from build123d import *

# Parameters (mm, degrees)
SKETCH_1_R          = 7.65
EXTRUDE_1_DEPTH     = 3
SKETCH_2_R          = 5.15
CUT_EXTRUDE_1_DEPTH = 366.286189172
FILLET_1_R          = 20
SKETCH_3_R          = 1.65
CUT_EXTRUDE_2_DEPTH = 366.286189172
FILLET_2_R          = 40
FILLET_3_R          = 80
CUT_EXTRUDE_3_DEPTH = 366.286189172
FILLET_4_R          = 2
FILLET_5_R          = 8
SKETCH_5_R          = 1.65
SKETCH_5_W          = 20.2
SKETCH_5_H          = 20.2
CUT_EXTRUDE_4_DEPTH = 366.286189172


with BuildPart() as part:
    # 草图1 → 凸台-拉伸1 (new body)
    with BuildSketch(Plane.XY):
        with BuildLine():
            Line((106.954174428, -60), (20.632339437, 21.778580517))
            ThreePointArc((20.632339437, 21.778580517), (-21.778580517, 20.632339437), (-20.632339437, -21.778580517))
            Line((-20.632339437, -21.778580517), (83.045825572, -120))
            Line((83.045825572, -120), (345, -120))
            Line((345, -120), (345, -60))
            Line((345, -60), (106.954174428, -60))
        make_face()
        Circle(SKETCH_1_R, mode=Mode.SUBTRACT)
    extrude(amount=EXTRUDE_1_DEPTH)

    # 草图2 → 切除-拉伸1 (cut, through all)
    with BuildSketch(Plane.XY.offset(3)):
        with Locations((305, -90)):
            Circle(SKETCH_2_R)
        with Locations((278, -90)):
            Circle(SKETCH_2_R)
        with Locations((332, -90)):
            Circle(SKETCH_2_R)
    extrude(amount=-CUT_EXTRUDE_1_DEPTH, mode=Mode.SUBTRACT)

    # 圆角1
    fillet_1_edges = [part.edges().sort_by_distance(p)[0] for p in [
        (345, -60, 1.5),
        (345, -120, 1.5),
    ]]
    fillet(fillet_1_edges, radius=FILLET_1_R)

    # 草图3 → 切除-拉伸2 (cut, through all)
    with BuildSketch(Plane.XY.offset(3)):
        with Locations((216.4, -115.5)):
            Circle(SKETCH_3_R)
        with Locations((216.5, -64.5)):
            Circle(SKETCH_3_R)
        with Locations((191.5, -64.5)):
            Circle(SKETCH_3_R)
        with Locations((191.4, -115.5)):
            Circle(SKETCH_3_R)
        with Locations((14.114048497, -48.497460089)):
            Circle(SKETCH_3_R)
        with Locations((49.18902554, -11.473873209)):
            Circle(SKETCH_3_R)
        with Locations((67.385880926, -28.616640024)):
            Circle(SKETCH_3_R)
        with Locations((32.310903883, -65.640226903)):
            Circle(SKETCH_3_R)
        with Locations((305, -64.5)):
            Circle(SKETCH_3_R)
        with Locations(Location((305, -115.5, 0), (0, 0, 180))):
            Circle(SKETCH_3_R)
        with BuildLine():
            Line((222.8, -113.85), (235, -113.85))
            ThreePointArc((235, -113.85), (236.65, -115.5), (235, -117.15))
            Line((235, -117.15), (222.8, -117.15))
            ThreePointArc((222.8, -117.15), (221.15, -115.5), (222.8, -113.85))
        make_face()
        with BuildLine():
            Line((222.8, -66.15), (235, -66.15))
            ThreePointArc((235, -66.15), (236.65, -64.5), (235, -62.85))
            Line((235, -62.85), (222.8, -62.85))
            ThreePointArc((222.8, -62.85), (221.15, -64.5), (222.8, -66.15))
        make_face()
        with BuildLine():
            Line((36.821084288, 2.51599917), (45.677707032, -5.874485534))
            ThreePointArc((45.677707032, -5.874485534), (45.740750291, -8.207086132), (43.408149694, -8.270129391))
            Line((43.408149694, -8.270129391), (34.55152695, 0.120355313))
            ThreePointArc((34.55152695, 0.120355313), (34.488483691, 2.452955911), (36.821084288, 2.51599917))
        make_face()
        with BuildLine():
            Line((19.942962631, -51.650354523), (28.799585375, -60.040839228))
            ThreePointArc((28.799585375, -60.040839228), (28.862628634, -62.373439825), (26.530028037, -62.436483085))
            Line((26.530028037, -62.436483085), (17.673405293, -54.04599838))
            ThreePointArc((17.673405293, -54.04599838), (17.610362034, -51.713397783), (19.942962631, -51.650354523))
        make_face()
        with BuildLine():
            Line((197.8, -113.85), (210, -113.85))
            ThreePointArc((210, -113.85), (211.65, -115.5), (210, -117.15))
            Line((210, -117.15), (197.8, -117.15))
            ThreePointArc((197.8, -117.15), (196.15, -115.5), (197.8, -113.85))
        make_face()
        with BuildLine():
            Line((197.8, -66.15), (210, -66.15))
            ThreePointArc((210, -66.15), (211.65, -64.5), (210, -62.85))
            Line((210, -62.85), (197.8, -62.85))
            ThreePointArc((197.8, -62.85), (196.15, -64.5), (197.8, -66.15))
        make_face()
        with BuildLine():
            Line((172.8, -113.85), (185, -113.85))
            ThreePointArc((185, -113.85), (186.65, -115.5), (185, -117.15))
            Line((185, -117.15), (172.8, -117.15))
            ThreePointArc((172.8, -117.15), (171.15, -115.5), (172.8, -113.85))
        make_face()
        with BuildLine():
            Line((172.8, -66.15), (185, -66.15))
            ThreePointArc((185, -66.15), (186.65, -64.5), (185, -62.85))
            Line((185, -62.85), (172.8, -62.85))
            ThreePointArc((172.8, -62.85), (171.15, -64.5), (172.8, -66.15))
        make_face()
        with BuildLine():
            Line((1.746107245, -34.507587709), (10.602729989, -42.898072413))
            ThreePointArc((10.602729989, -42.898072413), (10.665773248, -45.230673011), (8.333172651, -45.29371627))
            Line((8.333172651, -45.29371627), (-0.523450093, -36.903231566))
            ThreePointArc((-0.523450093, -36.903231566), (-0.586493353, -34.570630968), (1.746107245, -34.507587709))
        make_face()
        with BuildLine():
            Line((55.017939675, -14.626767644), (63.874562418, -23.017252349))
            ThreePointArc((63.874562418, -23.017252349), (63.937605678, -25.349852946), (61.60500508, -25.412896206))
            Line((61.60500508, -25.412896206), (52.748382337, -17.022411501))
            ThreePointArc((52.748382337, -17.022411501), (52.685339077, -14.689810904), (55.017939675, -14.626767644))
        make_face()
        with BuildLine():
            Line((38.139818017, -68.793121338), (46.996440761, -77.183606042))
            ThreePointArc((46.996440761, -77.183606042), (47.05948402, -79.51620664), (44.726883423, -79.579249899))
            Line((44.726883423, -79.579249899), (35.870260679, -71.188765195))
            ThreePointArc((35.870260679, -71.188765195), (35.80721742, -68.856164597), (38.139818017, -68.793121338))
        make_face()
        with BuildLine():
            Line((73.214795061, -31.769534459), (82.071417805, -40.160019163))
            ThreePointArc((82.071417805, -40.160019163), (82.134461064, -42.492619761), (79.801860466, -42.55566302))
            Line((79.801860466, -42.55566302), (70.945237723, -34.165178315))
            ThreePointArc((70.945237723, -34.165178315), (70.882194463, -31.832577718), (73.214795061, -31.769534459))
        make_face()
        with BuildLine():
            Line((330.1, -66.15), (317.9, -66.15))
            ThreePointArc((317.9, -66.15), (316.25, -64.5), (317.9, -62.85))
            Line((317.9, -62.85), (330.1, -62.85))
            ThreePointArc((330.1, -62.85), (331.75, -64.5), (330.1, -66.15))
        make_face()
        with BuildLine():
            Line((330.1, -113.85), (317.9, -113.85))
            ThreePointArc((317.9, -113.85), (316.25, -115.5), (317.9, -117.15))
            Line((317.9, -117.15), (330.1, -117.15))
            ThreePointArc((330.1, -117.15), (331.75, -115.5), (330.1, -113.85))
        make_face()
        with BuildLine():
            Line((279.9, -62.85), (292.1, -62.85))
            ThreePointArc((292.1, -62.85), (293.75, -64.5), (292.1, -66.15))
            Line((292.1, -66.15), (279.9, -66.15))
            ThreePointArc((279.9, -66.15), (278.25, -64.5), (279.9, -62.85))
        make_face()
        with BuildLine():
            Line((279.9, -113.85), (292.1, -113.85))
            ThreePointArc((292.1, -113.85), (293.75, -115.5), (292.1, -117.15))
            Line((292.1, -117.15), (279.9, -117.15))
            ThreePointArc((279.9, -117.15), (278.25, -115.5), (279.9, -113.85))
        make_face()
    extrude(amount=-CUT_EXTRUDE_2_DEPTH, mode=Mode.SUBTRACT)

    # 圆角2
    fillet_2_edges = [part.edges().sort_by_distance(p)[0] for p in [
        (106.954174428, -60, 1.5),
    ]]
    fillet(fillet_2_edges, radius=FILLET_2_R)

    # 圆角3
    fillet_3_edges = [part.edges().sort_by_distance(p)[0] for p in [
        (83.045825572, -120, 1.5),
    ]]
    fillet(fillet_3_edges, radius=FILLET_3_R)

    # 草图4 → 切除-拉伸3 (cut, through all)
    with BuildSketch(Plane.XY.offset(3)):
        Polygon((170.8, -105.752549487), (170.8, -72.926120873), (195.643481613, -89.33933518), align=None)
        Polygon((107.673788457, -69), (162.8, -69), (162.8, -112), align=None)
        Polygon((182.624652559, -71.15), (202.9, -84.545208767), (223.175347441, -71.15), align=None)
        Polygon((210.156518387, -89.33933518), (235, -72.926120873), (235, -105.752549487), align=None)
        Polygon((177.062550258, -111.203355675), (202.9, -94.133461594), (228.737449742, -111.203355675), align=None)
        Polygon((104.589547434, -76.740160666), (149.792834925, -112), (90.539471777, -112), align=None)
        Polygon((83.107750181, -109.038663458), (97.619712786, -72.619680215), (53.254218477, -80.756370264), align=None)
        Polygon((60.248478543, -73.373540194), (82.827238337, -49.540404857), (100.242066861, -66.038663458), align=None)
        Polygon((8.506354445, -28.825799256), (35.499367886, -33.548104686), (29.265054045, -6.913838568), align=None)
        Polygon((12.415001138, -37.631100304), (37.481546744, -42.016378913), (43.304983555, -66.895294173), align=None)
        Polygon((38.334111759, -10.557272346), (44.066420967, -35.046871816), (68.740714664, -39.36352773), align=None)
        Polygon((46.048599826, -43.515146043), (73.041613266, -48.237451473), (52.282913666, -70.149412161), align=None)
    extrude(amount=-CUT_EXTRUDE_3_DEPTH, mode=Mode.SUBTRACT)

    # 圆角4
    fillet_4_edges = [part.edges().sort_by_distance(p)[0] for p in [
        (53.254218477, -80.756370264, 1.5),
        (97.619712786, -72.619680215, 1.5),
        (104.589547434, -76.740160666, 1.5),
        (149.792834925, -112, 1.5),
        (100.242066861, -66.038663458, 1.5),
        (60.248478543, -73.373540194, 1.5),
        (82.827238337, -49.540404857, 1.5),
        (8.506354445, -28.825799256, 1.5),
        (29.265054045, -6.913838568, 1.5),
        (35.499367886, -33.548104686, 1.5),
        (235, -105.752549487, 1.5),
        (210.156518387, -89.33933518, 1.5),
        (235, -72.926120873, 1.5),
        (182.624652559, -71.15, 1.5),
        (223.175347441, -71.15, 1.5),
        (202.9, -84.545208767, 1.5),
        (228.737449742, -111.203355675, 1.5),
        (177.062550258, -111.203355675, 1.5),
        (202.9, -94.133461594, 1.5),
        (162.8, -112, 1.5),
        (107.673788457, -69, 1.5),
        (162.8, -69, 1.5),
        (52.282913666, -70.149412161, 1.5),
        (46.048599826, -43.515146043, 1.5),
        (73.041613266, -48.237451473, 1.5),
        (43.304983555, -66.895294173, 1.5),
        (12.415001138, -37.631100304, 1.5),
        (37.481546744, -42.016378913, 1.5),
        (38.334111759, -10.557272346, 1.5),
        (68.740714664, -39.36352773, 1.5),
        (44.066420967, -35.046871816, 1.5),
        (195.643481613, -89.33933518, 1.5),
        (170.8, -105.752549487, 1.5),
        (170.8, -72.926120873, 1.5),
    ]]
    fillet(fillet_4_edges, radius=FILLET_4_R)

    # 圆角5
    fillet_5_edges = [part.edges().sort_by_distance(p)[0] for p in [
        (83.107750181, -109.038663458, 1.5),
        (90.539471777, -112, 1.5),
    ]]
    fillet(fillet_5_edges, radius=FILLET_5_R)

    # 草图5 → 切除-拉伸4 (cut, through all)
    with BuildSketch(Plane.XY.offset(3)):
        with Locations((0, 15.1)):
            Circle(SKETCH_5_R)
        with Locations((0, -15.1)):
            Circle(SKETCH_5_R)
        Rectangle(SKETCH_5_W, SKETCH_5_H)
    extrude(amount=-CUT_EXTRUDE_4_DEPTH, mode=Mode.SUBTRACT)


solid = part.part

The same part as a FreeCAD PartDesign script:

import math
import FreeCAD as App
import Part
import Sketcher

V = App.Vector
Q = App.Units.Quantity


def edges_at(feature, points):
    """Names of the edges that pass closest to the given points."""
    edges = feature.Shape.Edges
    near = lambda p: min(range(len(edges)), key=lambda i: edges[i].distToShape(Part.Vertex(*p))[0])
    return sorted({f"Edge{near(p) + 1}" for p in points})


def add_polygon(sketch, points):
    """Adds a closed chain of lines whose ends are joined by coincident constraints."""
    first, n = sketch.GeometryCount, len(points)
    for a, b in zip(points, points[1:] + points[:1]):
        sketch.addGeometry(Part.LineSegment(App.Vector(*a, 0), App.Vector(*b, 0)), False)
    for i in range(n):
        sketch.addConstraint(Sketcher.Constraint("Coincident", first + i, 2, first + (i + 1) % n, 1))

doc = App.newDocument("Part")
params = doc.addObject("Spreadsheet::Sheet", "Params")
for row, (alias, value) in enumerate([
    ("sketch1_radius", "30 mm"),
    ("sketch1_diameter", "15.3 mm"),
    ("sketch1_height", "60 mm"),
    ("pad1_length", "3 mm"),
    ("sketch2_diameter", "10.3 mm"),
    ("fillet_radius", "20 mm"),
    ("sketch3_diameter", "3.3 mm"),
    ("sketch3_width", "12.2 mm"),
    ("sketch3_length", "12.2 mm"),
    ("fillet2_radius", "40 mm"),
    ("fillet3_radius", "80 mm"),
    ("sketch4_height", "43 mm"),
    ("fillet4_radius", "2 mm"),
    ("fillet5_radius", "8 mm"),
    ("sketch5_diameter", "3.3 mm"),
    ("sketch5_width", "20.2 mm"),
], start=1):
    params.set(f"A{row}", alias)
    params.set(f"B{row}", "=" + value)
    params.setAlias(f"B{row}", alias)

body = doc.addObject("PartDesign::Body", "Body")

sketch1 = body.newObject("Sketcher::SketchObject", "Sketch")
sketch1.AttachmentSupport = (doc.getObject("XY_Plane"), [""])
sketch1.MapMode = "FlatFace"
sketch1.addGeometry([
    Part.LineSegment(V(107, -60, 0), V(21, 22, 0)),
    Part.ArcOfCircle(Part.Circle(V(0, 0, 0), V(0, 0, 1), 30), math.radians(47), math.radians(227)),
    Part.LineSegment(V(-21, -22, 0), V(83, -120, 0)),
    Part.LineSegment(V(83, -120, 0), V(345, -120, 0)),
    Part.LineSegment(V(345, -120, 0), V(345, -60, 0)),
    Part.LineSegment(V(345, -60, 0), V(107, -60, 0)),
    Part.Circle(V(0, 0, 0), V(0, 0, 1), 8),
], False)
sketch1.addConstraint([
    Sketcher.Constraint("Tangent", 0, 2, 1, 1),
    Sketcher.Constraint("Tangent", 1, 2, 2, 1),
    Sketcher.Constraint("Coincident", 2, 2, 3, 1),
    Sketcher.Constraint("Coincident", 3, 2, 4, 1),
    Sketcher.Constraint("Coincident", 4, 2, 5, 1),
    Sketcher.Constraint("Coincident", 5, 2, 0, 1),
    Sketcher.Constraint("Horizontal", 3),
    Sketcher.Constraint("Vertical", 4),
    Sketcher.Constraint("Horizontal", 5),
    Sketcher.Constraint("Coincident", 1, 3, -1, 1),
    Sketcher.Constraint("Coincident", 6, 3, -1, 1),
    Sketcher.Constraint("Parallel", 0, 2),
    Sketcher.Constraint("Radius", 1, Q("30 mm")),
    Sketcher.Constraint("Diameter", 6, Q("15.3 mm")),
    Sketcher.Constraint("DistanceY", 4, 1, 4, 2, Q("60 mm")),
    Sketcher.Constraint("DistanceY", 2, 2, -1, 1, Q("120 mm")),
    Sketcher.Constraint("DistanceX", -1, 1, 3, 2, Q("345 mm")),
    Sketcher.Constraint("Distance", 0, Q("118.908349 mm")),
])
sketch1.setExpression("Constraints[12]", "Params.sketch1_radius")
sketch1.setExpression("Constraints[13]", "Params.sketch1_diameter")
sketch1.setExpression("Constraints[14]", "Params.sketch1_height")
pad1 = body.newObject("PartDesign::Pad", "Pad")
pad1.Profile = sketch1
pad1.setExpression("Length", "Params.pad1_length")

sketch2 = body.newObject("Sketcher::SketchObject", "Sketch001")
sketch2.AttachmentSupport = (doc.getObject("XY_Plane"), [""])
sketch2.MapMode = "FlatFace"
sketch2.AttachmentOffset = App.Placement(V(0, 0, 3), App.Rotation())
sketch2.addGeometry([
    Part.Circle(V(305, -90, 0), V(0, 0, 1), 5),
    Part.Circle(V(278, -90, 0), V(0, 0, 1), 5),
    Part.Circle(V(332, -90, 0), V(0, 0, 1), 5),
], False)
sketch2.addConstraint([
    Sketcher.Constraint("Equal", 0, 1),
    Sketcher.Constraint("Equal", 1, 2),
    Sketcher.Constraint("Horizontal", 0, 3, 1, 3),
    Sketcher.Constraint("Horizontal", 1, 3, 2, 3),
    Sketcher.Constraint("Diameter", 0, Q("10.3 mm")),
    Sketcher.Constraint("DistanceX", -1, 1, 0, 3, Q("305 mm")),
    Sketcher.Constraint("DistanceY", 0, 3, -1, 1, Q("90 mm")),
    Sketcher.Constraint("DistanceX", -1, 1, 1, 3, Q("278 mm")),
    Sketcher.Constraint("DistanceX", -1, 1, 2, 3, Q("332 mm")),
])
sketch2.setExpression("Constraints[4]", "Params.sketch2_diameter")
pocket1 = body.newObject("PartDesign::Pocket", "Pocket")
pocket1.Profile = sketch2
pocket1.Type = "ThroughAll"
doc.recompute()

fillet = body.newObject("PartDesign::Fillet", "Fillet")
fillet.Base = (pocket1, edges_at(pocket1, [(345, -60, 1.5), (345, -120, 1.5)]))
fillet.setExpression("Radius", "Params.fillet_radius")

sketch3 = body.newObject("Sketcher::SketchObject", "Sketch002")
sketch3.AttachmentSupport = (doc.getObject("XY_Plane"), [""])
sketch3.MapMode = "FlatFace"
sketch3.AttachmentOffset = App.Placement(V(0, 0, 3), App.Rotation())
sketch3.addGeometry([
    Part.Circle(V(216.4, -115.5, 0), V(0, 0, 1), 1.6),
    Part.Circle(V(216.5, -64.5, 0), V(0, 0, 1), 1.6),
    Part.Circle(V(191.5, -64.5, 0), V(0, 0, 1), 1.6),
    Part.Circle(V(191.4, -115.5, 0), V(0, 0, 1), 1.6),
    Part.Circle(V(14.1, -48.5, 0), V(0, 0, 1), 1.6),
    Part.Circle(V(49.2, -11.5, 0), V(0, 0, 1), 1.6),
    Part.Circle(V(67.4, -28.6, 0), V(0, 0, 1), 1.6),
    Part.Circle(V(32.3, -65.6, 0), V(0, 0, 1), 1.6),
    Part.Circle(V(305, -64.5, 0), V(0, 0, 1), 1.6),
    Part.Circle(V(305, -115.5, 0), V(0, 0, 1), 1.6),
    Part.LineSegment(V(235, -113.8, 0), V(222.8, -113.8, 0)),
    Part.ArcOfCircle(Part.Circle(V(222.8, -115.5, 0), V(0, 0, 1), 1.6), math.radians(90), math.radians(270)),
    Part.LineSegment(V(222.8, -117.2, 0), V(235, -117.2, 0)),
    Part.ArcOfCircle(Part.Circle(V(235, -115.5, 0), V(0, 0, 1), 1.6), math.radians(-90), math.radians(90)),
    Part.LineSegment(V(222.8, -66.2, 0), V(235, -66.2, 0)),
    Part.ArcOfCircle(Part.Circle(V(235, -64.5, 0), V(0, 0, 1), 1.6), math.radians(-90), math.radians(90)),
    Part.LineSegment(V(235, -62.9, 0), V(222.8, -62.9, 0)),
    Part.ArcOfCircle(Part.Circle(V(222.8, -64.5, 0), V(0, 0, 1), 1.6), math.radians(90), math.radians(270)),
    Part.LineSegment(V(45.7, -5.9, 0), V(36.8, 2.5, 0)),
    Part.ArcOfCircle(Part.Circle(V(35.7, 1.3, 0), V(0, 0, 1), 1.6), math.radians(47), math.radians(227)),
    Part.LineSegment(V(34.6, 0.1, 0), V(43.4, -8.3, 0)),
    Part.ArcOfCircle(Part.Circle(V(44.5, -7.1, 0), V(0, 0, 1), 1.6), math.radians(-133), math.radians(47)),
    Part.LineSegment(V(28.8, -60, 0), V(19.9, -51.7, 0)),
    Part.ArcOfCircle(Part.Circle(V(18.8, -52.8, 0), V(0, 0, 1), 1.6), math.radians(47), math.radians(227)),
    Part.LineSegment(V(17.7, -54, 0), V(26.5, -62.4, 0)),
    Part.ArcOfCircle(Part.Circle(V(27.7, -61.2, 0), V(0, 0, 1), 1.6), math.radians(-133), math.radians(47)),
    Part.LineSegment(V(210, -113.8, 0), V(197.8, -113.8, 0)),
    Part.ArcOfCircle(Part.Circle(V(197.8, -115.5, 0), V(0, 0, 1), 1.6), math.radians(90), math.radians(270)),
    Part.LineSegment(V(197.8, -117.2, 0), V(210, -117.2, 0)),
    Part.ArcOfCircle(Part.Circle(V(210, -115.5, 0), V(0, 0, 1), 1.6), math.radians(-90), math.radians(90)),
    Part.LineSegment(V(197.8, -66.2, 0), V(210, -66.2, 0)),
    Part.ArcOfCircle(Part.Circle(V(210, -64.5, 0), V(0, 0, 1), 1.6), math.radians(-90), math.radians(90)),
    Part.LineSegment(V(210, -62.9, 0), V(197.8, -62.9, 0)),
    Part.ArcOfCircle(Part.Circle(V(197.8, -64.5, 0), V(0, 0, 1), 1.6), math.radians(90), math.radians(270)),
    Part.LineSegment(V(185, -113.8, 0), V(172.8, -113.8, 0)),
    Part.ArcOfCircle(Part.Circle(V(172.8, -115.5, 0), V(0, 0, 1), 1.6), math.radians(90), math.radians(270)),
    Part.LineSegment(V(172.8, -117.2, 0), V(185, -117.2, 0)),
    Part.ArcOfCircle(Part.Circle(V(185, -115.5, 0), V(0, 0, 1), 1.6), math.radians(-90), math.radians(90)),
    Part.LineSegment(V(172.8, -66.2, 0), V(185, -66.2, 0)),
    Part.ArcOfCircle(Part.Circle(V(185, -64.5, 0), V(0, 0, 1), 1.6), math.radians(-90), math.radians(90)),
    Part.LineSegment(V(185, -62.9, 0), V(172.8, -62.9, 0)),
    Part.ArcOfCircle(Part.Circle(V(172.8, -64.5, 0), V(0, 0, 1), 1.6), math.radians(90), math.radians(270)),
    Part.LineSegment(V(10.6, -42.9, 0), V(1.7, -34.5, 0)),
    Part.ArcOfCircle(Part.Circle(V(0.6, -35.7, 0), V(0, 0, 1), 1.6), math.radians(47), math.radians(227)),
    Part.LineSegment(V(-0.5, -36.9, 0), V(8.3, -45.3, 0)),
    Part.ArcOfCircle(Part.Circle(V(9.5, -44.1, 0), V(0, 0, 1), 1.6), math.radians(-133), math.radians(47)),
    Part.LineSegment(V(63.9, -23, 0), V(55, -14.6, 0)),
    Part.ArcOfCircle(Part.Circle(V(53.9, -15.8, 0), V(0, 0, 1), 1.6), math.radians(47), math.radians(227)),
    Part.LineSegment(V(52.7, -17, 0), V(61.6, -25.4, 0)),
    Part.ArcOfCircle(Part.Circle(V(62.7, -24.2, 0), V(0, 0, 1), 1.6), math.radians(-133), math.radians(47)),
    Part.LineSegment(V(47, -77.2, 0), V(38.1, -68.8, 0)),
    Part.ArcOfCircle(Part.Circle(V(37, -70, 0), V(0, 0, 1), 1.6), math.radians(47), math.radians(227)),
    Part.LineSegment(V(35.9, -71.2, 0), V(44.7, -79.6, 0)),
    Part.ArcOfCircle(Part.Circle(V(45.9, -78.4, 0), V(0, 0, 1), 1.6), math.radians(-133), math.radians(47)),
    Part.LineSegment(V(82.1, -40.2, 0), V(73.2, -31.8, 0)),
    Part.ArcOfCircle(Part.Circle(V(72.1, -33, 0), V(0, 0, 1), 1.6), math.radians(47), math.radians(227)),
    Part.LineSegment(V(70.9, -34.2, 0), V(79.8, -42.6, 0)),
    Part.ArcOfCircle(Part.Circle(V(80.9, -41.4, 0), V(0, 0, 1), 1.6), math.radians(-133), math.radians(47)),
    Part.LineSegment(V(317.9, -66.2, 0), V(330.1, -66.2, 0)),
    Part.ArcOfCircle(Part.Circle(V(330.1, -64.5, 0), V(0, 0, 1), 1.6), math.radians(-90), math.radians(90)),
    Part.LineSegment(V(330.1, -62.9, 0), V(317.9, -62.9, 0)),
    Part.ArcOfCircle(Part.Circle(V(317.9, -64.5, 0), V(0, 0, 1), 1.6), math.radians(90), math.radians(270)),
    Part.LineSegment(V(330.1, -113.8, 0), V(317.9, -113.8, 0)),
    Part.ArcOfCircle(Part.Circle(V(317.9, -115.5, 0), V(0, 0, 1), 1.6), math.radians(90), math.radians(270)),
    Part.LineSegment(V(317.9, -117.2, 0), V(330.1, -117.2, 0)),
    Part.ArcOfCircle(Part.Circle(V(330.1, -115.5, 0), V(0, 0, 1), 1.6), math.radians(-90), math.radians(90)),
    Part.LineSegment(V(292.1, -62.9, 0), V(279.9, -62.9, 0)),
    Part.ArcOfCircle(Part.Circle(V(279.9, -64.5, 0), V(0, 0, 1), 1.6), math.radians(90), math.radians(270)),
    Part.LineSegment(V(279.9, -66.2, 0), V(292.1, -66.2, 0)),
    Part.ArcOfCircle(Part.Circle(V(292.1, -64.5, 0), V(0, 0, 1), 1.6), math.radians(-90), math.radians(90)),
    Part.LineSegment(V(292.1, -113.8, 0), V(279.9, -113.8, 0)),
    Part.ArcOfCircle(Part.Circle(V(279.9, -115.5, 0), V(0, 0, 1), 1.6), math.radians(90), math.radians(270)),
    Part.LineSegment(V(279.9, -117.2, 0), V(292.1, -117.2, 0)),
    Part.ArcOfCircle(Part.Circle(V(292.1, -115.5, 0), V(0, 0, 1), 1.6), math.radians(-90), math.radians(90)),
], False)
sketch3.addConstraint([
    Sketcher.Constraint("Tangent", 10, 2, 11, 1),
    Sketcher.Constraint("Tangent", 11, 2, 12, 1),
    Sketcher.Constraint("Tangent", 12, 2, 13, 1),
    Sketcher.Constraint("Tangent", 13, 2, 10, 1),
    Sketcher.Constraint("Tangent", 14, 2, 15, 1),
    Sketcher.Constraint("Tangent", 15, 2, 16, 1),
    Sketcher.Constraint("Tangent", 16, 2, 17, 1),
    Sketcher.Constraint("Tangent", 17, 2, 14, 1),
    Sketcher.Constraint("Tangent", 18, 2, 19, 1),
    Sketcher.Constraint("Tangent", 19, 2, 20, 1),
    Sketcher.Constraint("Tangent", 20, 2, 21, 1),
    Sketcher.Constraint("Tangent", 21, 2, 18, 1),
    Sketcher.Constraint("Tangent", 22, 2, 23, 1),
    Sketcher.Constraint("Tangent", 23, 2, 24, 1),
    Sketcher.Constraint("Tangent", 24, 2, 25, 1),
    Sketcher.Constraint("Tangent", 25, 2, 22, 1),
    Sketcher.Constraint("Tangent", 26, 2, 27, 1),
    Sketcher.Constraint("Tangent", 27, 2, 28, 1),
    Sketcher.Constraint("Tangent", 28, 2, 29, 1),
    Sketcher.Constraint("Tangent", 29, 2, 26, 1),
    Sketcher.Constraint("Tangent", 30, 2, 31, 1),
    Sketcher.Constraint("Tangent", 31, 2, 32, 1),
    Sketcher.Constraint("Tangent", 32, 2, 33, 1),
    Sketcher.Constraint("Tangent", 33, 2, 30, 1),
    Sketcher.Constraint("Tangent", 34, 2, 35, 1),
    Sketcher.Constraint("Tangent", 35, 2, 36, 1),
    Sketcher.Constraint("Tangent", 36, 2, 37, 1),
    Sketcher.Constraint("Tangent", 37, 2, 34, 1),
    Sketcher.Constraint("Tangent", 38, 2, 39, 1),
    Sketcher.Constraint("Tangent", 39, 2, 40, 1),
    Sketcher.Constraint("Tangent", 40, 2, 41, 1),
    Sketcher.Constraint("Tangent", 41, 2, 38, 1),
    Sketcher.Constraint("Tangent", 42, 2, 43, 1),
    Sketcher.Constraint("Tangent", 43, 2, 44, 1),
    Sketcher.Constraint("Tangent", 44, 2, 45, 1),
    Sketcher.Constraint("Tangent", 45, 2, 42, 1),
    Sketcher.Constraint("Tangent", 46, 2, 47, 1),
    Sketcher.Constraint("Tangent", 47, 2, 48, 1),
    Sketcher.Constraint("Tangent", 48, 2, 49, 1),
    Sketcher.Constraint("Tangent", 49, 2, 46, 1),
    Sketcher.Constraint("Tangent", 50, 2, 51, 1),
    Sketcher.Constraint("Tangent", 51, 2, 52, 1),
    Sketcher.Constraint("Tangent", 52, 2, 53, 1),
    Sketcher.Constraint("Tangent", 53, 2, 50, 1),
    Sketcher.Constraint("Tangent", 54, 2, 55, 1),
    Sketcher.Constraint("Tangent", 55, 2, 56, 1),
    Sketcher.Constraint("Tangent", 56, 2, 57, 1),
    Sketcher.Constraint("Tangent", 57, 2, 54, 1),
    Sketcher.Constraint("Tangent", 58, 2, 59, 1),
    Sketcher.Constraint("Tangent", 59, 2, 60, 1),
    Sketcher.Constraint("Tangent", 60, 2, 61, 1),
    Sketcher.Constraint("Tangent", 61, 2, 58, 1),
    Sketcher.Constraint("Tangent", 62, 2, 63, 1),
    Sketcher.Constraint("Tangent", 63, 2, 64, 1),
    Sketcher.Constraint("Tangent", 64, 2, 65, 1),
    Sketcher.Constraint("Tangent", 65, 2, 62, 1),
    Sketcher.Constraint("Tangent", 66, 2, 67, 1),
    Sketcher.Constraint("Tangent", 67, 2, 68, 1),
    Sketcher.Constraint("Tangent", 68, 2, 69, 1),
    Sketcher.Constraint("Tangent", 69, 2, 66, 1),
    Sketcher.Constraint("Tangent", 70, 2, 71, 1),
    Sketcher.Constraint("Tangent", 71, 2, 72, 1),
    Sketcher.Constraint("Tangent", 72, 2, 73, 1),
    Sketcher.Constraint("Tangent", 73, 2, 70, 1),
    Sketcher.Constraint("Horizontal", 10),
    Sketcher.Constraint("Horizontal", 12),
    Sketcher.Constraint("Horizontal", 14),
    Sketcher.Constraint("Horizontal", 16),
    Sketcher.Constraint("Horizontal", 26),
    Sketcher.Constraint("Horizontal", 28),
    Sketcher.Constraint("Horizontal", 30),
    Sketcher.Constraint("Horizontal", 32),
    Sketcher.Constraint("Horizontal", 34),
    Sketcher.Constraint("Horizontal", 36),
    Sketcher.Constraint("Horizontal", 38),
    Sketcher.Constraint("Horizontal", 40),
    Sketcher.Constraint("Horizontal", 58),
    Sketcher.Constraint("Horizontal", 60),
    Sketcher.Constraint("Horizontal", 62),
    Sketcher.Constraint("Horizontal", 64),
    Sketcher.Constraint("Horizontal", 66),
    Sketcher.Constraint("Horizontal", 68),
    Sketcher.Constraint("Horizontal", 70),
    Sketcher.Constraint("Horizontal", 72),
    Sketcher.Constraint("Equal", 0, 1),
    Sketcher.Constraint("Equal", 1, 2),
    Sketcher.Constraint("Equal", 2, 3),
    Sketcher.Constraint("Equal", 3, 4),
    Sketcher.Constraint("Equal", 4, 5),
    Sketcher.Constraint("Equal", 5, 6),
    Sketcher.Constraint("Equal", 6, 7),
    Sketcher.Constraint("Equal", 7, 8),
    Sketcher.Constraint("Equal", 8, 9),
    Sketcher.Constraint("Equal", 9, 11),
    Sketcher.Constraint("Equal", 13, 15),
    Sketcher.Constraint("Equal", 17, 19),
    Sketcher.Constraint("Equal", 19, 21),
    Sketcher.Constraint("Equal", 21, 23),
    Sketcher.Constraint("Equal", 23, 25),
    Sketcher.Constraint("Equal", 25, 27),
    Sketcher.Constraint("Equal", 29, 31),
    Sketcher.Constraint("Equal", 33, 35),
    Sketcher.Constraint("Equal", 37, 39),
    Sketcher.Constraint("Equal", 41, 43),
    Sketcher.Constraint("Equal", 43, 45),
    Sketcher.Constraint("Equal", 45, 47),
    Sketcher.Constraint("Equal", 47, 49),
    Sketcher.Constraint("Equal", 49, 51),
    Sketcher.Constraint("Equal", 51, 53),
    Sketcher.Constraint("Equal", 53, 55),
    Sketcher.Constraint("Equal", 55, 57),
    Sketcher.Constraint("Equal", 57, 59),
    Sketcher.Constraint("Equal", 61, 63),
    Sketcher.Constraint("Equal", 65, 67),
    Sketcher.Constraint("Equal", 69, 71),
    Sketcher.Constraint("Parallel", 20, 22),
    Sketcher.Constraint("Parallel", 24, 42),
    Sketcher.Constraint("Parallel", 44, 46),
    Sketcher.Constraint("Parallel", 48, 50),
    Sketcher.Constraint("Parallel", 52, 54),
    Sketcher.Constraint("Horizontal", 1, 3, 2, 3),
    Sketcher.Constraint("Horizontal", 0, 3, 3, 3),
    Sketcher.Constraint("Horizontal", 2, 3, 8, 3),
    Sketcher.Constraint("Horizontal", 3, 3, 9, 3),
    Sketcher.Constraint("Horizontal", 9, 3, 11, 3),
    Sketcher.Constraint("Horizontal", 8, 3, 15, 3),
    Sketcher.Constraint("Horizontal", 13, 3, 27, 3),
    Sketcher.Constraint("Horizontal", 17, 3, 31, 3),
    Sketcher.Constraint("Horizontal", 29, 3, 35, 3),
    Sketcher.Constraint("Horizontal", 33, 3, 39, 3),
    Sketcher.Constraint("Horizontal", 41, 3, 59, 3),
    Sketcher.Constraint("Horizontal", 37, 3, 63, 3),
    Sketcher.Constraint("Horizontal", 61, 3, 67, 3),
    Sketcher.Constraint("Horizontal", 65, 3, 71, 3),
    Sketcher.Constraint("Vertical", 8, 3, 9, 3),
    Sketcher.Constraint("Vertical", 13, 3, 15, 3),
    Sketcher.Constraint("Vertical", 11, 3, 17, 3),
    Sketcher.Constraint("Vertical", 29, 3, 31, 3),
    Sketcher.Constraint("Vertical", 27, 3, 33, 3),
    Sketcher.Constraint("Vertical", 37, 3, 39, 3),
    Sketcher.Constraint("Vertical", 35, 3, 41, 3),
    Sketcher.Constraint("Vertical", 61, 3, 63, 3),
    Sketcher.Constraint("Vertical", 59, 3, 65, 3),
    Sketcher.Constraint("Vertical", 67, 3, 71, 3),
    Sketcher.Constraint("Vertical", 69, 3, 73, 3),
    Sketcher.Constraint("Equal", 16, 26),
    Sketcher.Constraint("Equal", 32, 34),
    Sketcher.Constraint("Equal", 40, 58),
    Sketcher.Constraint("Equal", 64, 66),
    Sketcher.Constraint("Equal", 20, 22),
    Sketcher.Constraint("Equal", 24, 42),
    Sketcher.Constraint("Equal", 44, 46),
    Sketcher.Constraint("Equal", 48, 50),
    Sketcher.Constraint("Equal", 52, 54),
    Sketcher.Constraint("Diameter", 0, Q("3.3 mm")),
    Sketcher.Constraint("DistanceX", 10, 2, 10, 1, Q("12.2 mm")),
    Sketcher.Constraint("DistanceX", -1, 1, 8, 3, Q("305 mm")),
    Sketcher.Constraint("DistanceX", -1, 1, 13, 3, Q("235 mm")),
    Sketcher.Constraint("DistanceX", -1, 1, 29, 3, Q("210 mm")),
    Sketcher.Constraint("DistanceX", -1, 1, 37, 3, Q("185 mm")),
    Sketcher.Constraint("Distance", 18, Q("12.2 mm")),
    Sketcher.Constraint("DistanceX", -1, 1, 0, 3, Q("216.4 mm")),
    Sketcher.Constraint("DistanceY", 0, 3, -1, 1, Q("115.5 mm")),
    Sketcher.Constraint("DistanceX", -1, 1, 1, 3, Q("216.5 mm")),
    Sketcher.Constraint("DistanceY", 1, 3, -1, 1, Q("64.5 mm")),
    Sketcher.Constraint("DistanceX", -1, 1, 2, 3, Q("191.5 mm")),
    Sketcher.Constraint("DistanceX", -1, 1, 3, 3, Q("191.4 mm")),
    Sketcher.Constraint("DistanceX", -1, 1, 59, 3, Q("330.1 mm")),
    Sketcher.Constraint("DistanceX", -1, 1, 67, 3, Q("279.9 mm")),
    Sketcher.Constraint("DistanceY", -1, 1, 18, 2, Q("2.515999 mm")),
    Sketcher.Constraint("DistanceY", 23, 2, -1, 1, Q("54.045998 mm")),
    Sketcher.Constraint("DistanceX", -1, 1, 4, 3, Q("14.114048 mm")),
    Sketcher.Constraint("DistanceY", 4, 3, -1, 1, Q("48.49746 mm")),
    Sketcher.Constraint("DistanceX", -1, 1, 6, 3, Q("67.385881 mm")),
    Sketcher.Constraint("DistanceY", 6, 3, -1, 1, Q("28.61664 mm")),
    Sketcher.Constraint("DistanceX", -1, 1, 21, 3, Q("44.542928 mm")),
    Sketcher.Constraint("DistanceY", 25, 3, -1, 1, Q("61.238661 mm")),
    Sketcher.Constraint("DistanceX", -1, 1, 43, 3, Q("0.611329 mm")),
    Sketcher.Constraint("DistanceY", 43, 3, -1, 1, Q("35.70541 mm")),
    Sketcher.Constraint("DistanceX", -1, 1, 47, 3, Q("53.883161 mm")),
    Sketcher.Constraint("DistanceY", 47, 3, -1, 1, Q("15.82459 mm")),
    Sketcher.Constraint("DistanceX", -1, 1, 51, 3, Q("37.005039 mm")),
    Sketcher.Constraint("DistanceX", -1, 1, 57, 3, Q("80.936639 mm")),
    Sketcher.Constraint("DistanceY", 57, 3, -1, 1, Q("41.357841 mm")),
    Sketcher.Constraint("DistanceX", -1, 1, 24, 2, Q("26.530028 mm")),
    Sketcher.Constraint("DistanceY", 50, 2, -1, 1, Q("68.793121 mm")),
    Sketcher.Constraint("DistanceX", -1, 1, 5, 3, Q("49.189026 mm")),
    Sketcher.Constraint("DistanceY", 5, 3, -1, 1, Q("11.473873 mm")),
    Sketcher.Constraint("DistanceX", -1, 1, 7, 3, Q("32.310904 mm")),
    Sketcher.Constraint("DistanceY", 7, 3, -1, 1, Q("65.640227 mm")),
])
sketch3.setExpression("Constraints[154]", "Params.sketch3_diameter")
sketch3.setExpression("Constraints[155]", "Params.sketch3_width")
sketch3.setExpression("Constraints[160]", "Params.sketch3_length")
pocket2 = body.newObject("PartDesign::Pocket", "Pocket001")
pocket2.Profile = sketch3
pocket2.Type = "ThroughAll"
doc.recompute()

fillet2 = body.newObject("PartDesign::Fillet", "Fillet001")
fillet2.Base = (pocket2, edges_at(pocket2, [(106.954, -60, 1.5)]))
fillet2.setExpression("Radius", "Params.fillet2_radius")
doc.recompute()

fillet3 = body.newObject("PartDesign::Fillet", "Fillet002")
fillet3.Base = (fillet2, edges_at(fillet2, [(83.046, -120, 1.5)]))
fillet3.setExpression("Radius", "Params.fillet3_radius")

sketch4 = body.newObject("Sketcher::SketchObject", "Sketch003")
sketch4.AttachmentSupport = (doc.getObject("XY_Plane"), [""])
sketch4.MapMode = "FlatFace"
sketch4.AttachmentOffset = App.Placement(V(0, 0, 3), App.Rotation())
add_polygon(sketch4, [(171, -73), (171, -106), (196, -89)])
add_polygon(sketch4, [(163, -69), (108, -69), (163, -112)])
add_polygon(sketch4, [(183, -71), (203, -85), (223, -71)])
add_polygon(sketch4, [(235, -73), (210, -89), (235, -106)])
add_polygon(sketch4, [(203, -94), (177, -111), (229, -111)])
add_polygon(sketch4, [(150, -112), (105, -77), (91, -112)])
add_polygon(sketch4, [(83, -109), (98, -73), (53, -81)])
add_polygon(sketch4, [(83, -50), (60, -73), (100, -66)])
add_polygon(sketch4, [(9, -29), (35, -34), (29, -7)])
add_polygon(sketch4, [(37, -42), (12, -38), (43, -67)])
add_polygon(sketch4, [(38, -11), (44, -35), (69, -39)])
add_polygon(sketch4, [(73, -48), (46, -44), (52, -70)])
sketch4.addConstraint([
    Sketcher.Constraint("Vertical", 0),
    Sketcher.Constraint("Horizontal", 3),
    Sketcher.Constraint("Vertical", 5),
    Sketcher.Constraint("Horizontal", 8),
    Sketcher.Constraint("Vertical", 11),
    Sketcher.Constraint("Horizontal", 13),
    Sketcher.Constraint("Horizontal", 17),
    Sketcher.Constraint("Parallel", 2, 6),
    Sketcher.Constraint("Parallel", 1, 7),
    Sketcher.Constraint("Parallel", 7, 9),
    Sketcher.Constraint("Parallel", 6, 10),
    Sketcher.Constraint("Parallel", 9, 12),
    Sketcher.Constraint("Parallel", 10, 14),
    Sketcher.Constraint("Parallel", 4, 15),
    Sketcher.Constraint("Parallel", 16, 18),
    Sketcher.Constraint("Perpendicular", 20, 21),
    Sketcher.Constraint("Parallel", 19, 22),
    Sketcher.Constraint("Perpendicular", 21, 23),
    Sketcher.Constraint("Perpendicular", 23, 26),
    Sketcher.Constraint("Parallel", 24, 27),
    Sketcher.Constraint("Perpendicular", 26, 28),
    Sketcher.Constraint("Parallel", 25, 29),
    Sketcher.Constraint("Parallel", 29, 30),
    Sketcher.Constraint("Parallel", 27, 31),
    Sketcher.Constraint("Parallel", 28, 32),
    Sketcher.Constraint("Parallel", 31, 33),
    Sketcher.Constraint("Parallel", 30, 34),
    Sketcher.Constraint("Perpendicular", 32, 35),
    Sketcher.Constraint("Horizontal", 1, 2, 9, 2),
    Sketcher.Constraint("Horizontal", 0, 2, 10, 2),
    Sketcher.Constraint("Horizontal", 2, 2, 11, 2),
    Sketcher.Constraint("Horizontal", 4, 2, 16, 2),
    Sketcher.Constraint("Vertical", 6, 2, 14, 2),
    Sketcher.Constraint("Equal", 24, 33),
    Sketcher.Constraint("DistanceY", 5, 1, 5, 2, Q("43 mm")),
    Sketcher.Constraint("DistanceY", 3, 2, -1, 1, Q("69 mm")),
    Sketcher.Constraint("DistanceX", -1, 1, 10, 2, Q("235 mm")),
    Sketcher.Constraint("DistanceX", 4, 2, 0, 2, Q("8 mm")),
    Sketcher.Constraint("DistanceY", 20, 2, 22, 2, Q("43 mm")),
    Sketcher.Constraint("DistanceX", -1, 1, 0, 2, Q("170.8 mm")),
    Sketcher.Constraint("DistanceX", -1, 1, 6, 2, Q("202.9 mm")),
    Sketcher.Constraint("DistanceY", 7, 2, -1, 1, Q("71.15 mm")),
    Sketcher.Constraint("Distance", 12, Q("30.967 mm")),
    Sketcher.Constraint("DistanceX", 13, 1, 13, 2, Q("51.674899 mm")),
    Sketcher.Constraint("DistanceX", -1, 1, 27, 2, Q("12.415001 mm")),
    Sketcher.Constraint("DistanceX", 3, 2, 3, 1, Q("55.126212 mm")),
    Sketcher.Constraint("DistanceY", 0, 2, 0, 1, Q("32.826429 mm")),
    Sketcher.Constraint("DistanceY", 26, 2, -1, 1, Q("28.825799 mm")),
    Sketcher.Constraint("DistanceY", 27, 2, -1, 1, Q("37.6311 mm")),
    Sketcher.Constraint("DistanceX", -1, 1, 33, 2, Q("46.0486 mm")),
    Sketcher.Constraint("DistanceY", 23, 2, 24, 2, Q("15.9923 mm")),
    Sketcher.Constraint("DistanceX", 24, 2, 22, 2, Q("64.742699 mm")),
    Sketcher.Constraint("DistanceY", 21, 2, 25, 2, Q("66.459702 mm")),
    Sketcher.Constraint("DistanceX", 26, 2, 25, 2, Q("20.7587 mm")),
    Sketcher.Constraint("DistanceY", 30, 2, 32, 2, Q("24.489599 mm")),
    Sketcher.Constraint("DistanceX", 31, 2, 35, 2, Q("4.300899 mm")),
    Sketcher.Constraint("Distance", 15, Q("57.328819 mm")),
    Sketcher.Constraint("Distance", 16, Q("37.956039 mm")),
    Sketcher.Constraint("Distance", 18, Q("39.203819 mm")),
    Sketcher.Constraint("Distance", 21, Q("32.83015 mm")),
    Sketcher.Constraint("Distance", 22, Q("40.660639 mm")),
    Sketcher.Constraint("Distance", 26, Q("30.183731 mm")),
    Sketcher.Constraint("Distance", 28, Q("42.550958 mm")),
    Sketcher.Constraint("DistanceX", 8, 2, 8, 1, Q("40.550695 mm")),
    Sketcher.Constraint("DistanceY", 0, 2, -1, 1, Q("105.752549 mm")),
    Sketcher.Constraint("DistanceY", 14, 2, -1, 1, Q("94.133462 mm")),
    Sketcher.Constraint("DistanceX", -1, 1, 16, 2, Q("90.539472 mm")),
    Sketcher.Constraint("DistanceX", -1, 1, 19, 2, Q("53.254218 mm")),
    Sketcher.Constraint("DistanceX", -1, 1, 21, 2, Q("60.248479 mm")),
    Sketcher.Constraint("DistanceY", 29, 2, -1, 1, Q("42.016379 mm")),
    Sketcher.Constraint("DistanceY", 30, 2, -1, 1, Q("35.046872 mm")),
    Sketcher.Constraint("DistanceY", 35, 2, -1, 1, Q("48.237451 mm")),
])
sketch4.setExpression("Constraints[70]", "Params.sketch4_height")
pocket3 = body.newObject("PartDesign::Pocket", "Pocket002")
pocket3.Profile = sketch4
pocket3.Type = "ThroughAll"
doc.recompute()

fillet4 = body.newObject("PartDesign::Fillet", "Fillet003")
fillet4.Base = (pocket3, edges_at(pocket3, [
    (53.254, -80.756, 1.5),
    (97.62, -72.62, 1.5),
    (104.59, -76.74, 1.5),
    (149.793, -112, 1.5),
    (100.242, -66.039, 1.5),
    (60.248, -73.374, 1.5),
    (82.827, -49.54, 1.5),
    (8.506, -28.826, 1.5),
    (29.265, -6.914, 1.5),
    (35.499, -33.548, 1.5),
    (235, -105.753, 1.5),
    (210.157, -89.339, 1.5),
    (235, -72.926, 1.5),
    (182.625, -71.15, 1.5),
    (223.175, -71.15, 1.5),
    (202.9, -84.545, 1.5),
    (228.737, -111.203, 1.5),
    (177.063, -111.203, 1.5),
    (202.9, -94.133, 1.5),
    (162.8, -112, 1.5),
    (107.674, -69, 1.5),
    (162.8, -69, 1.5),
    (52.283, -70.149, 1.5),
    (46.049, -43.515, 1.5),
    (73.042, -48.237, 1.5),
    (43.305, -66.895, 1.5),
    (12.415, -37.631, 1.5),
    (37.482, -42.016, 1.5),
    (38.334, -10.557, 1.5),
    (68.741, -39.364, 1.5),
    (44.066, -35.047, 1.5),
    (195.643, -89.339, 1.5),
    (170.8, -105.753, 1.5),
    (170.8, -72.926, 1.5),
]))
fillet4.setExpression("Radius", "Params.fillet4_radius")
doc.recompute()

fillet5 = body.newObject("PartDesign::Fillet", "Fillet004")
fillet5.Base = (fillet4, edges_at(fillet4, [(83.108, -109.039, 1.5), (90.539, -112, 1.5)]))
fillet5.setExpression("Radius", "Params.fillet5_radius")

sketch5 = body.newObject("Sketcher::SketchObject", "Sketch004")
sketch5.AttachmentSupport = (doc.getObject("XY_Plane"), [""])
sketch5.MapMode = "FlatFace"
sketch5.AttachmentOffset = App.Placement(V(0, 0, 3), App.Rotation())
sketch5.addGeometry(Part.Circle(V(0, 15.1, 0), V(0, 0, 1), 1.6), False)
sketch5.addGeometry(Part.Circle(V(0, -15.1, 0), V(0, 0, 1), 1.6), False)
add_polygon(sketch5, [(-10.1, 10.1), (-10.1, -10.1), (10.1, -10.1), (10.1, 10.1)])
sketch5.addConstraint([
    Sketcher.Constraint("Vertical", 2),
    Sketcher.Constraint("Horizontal", 3),
    Sketcher.Constraint("Vertical", 4),
    Sketcher.Constraint("Horizontal", 5),
    Sketcher.Constraint("Equal", 0, 1),
    Sketcher.Constraint("Symmetric", 0, 3, 1, 3, -1, 1),
    Sketcher.Constraint("Symmetric", 2, 2, 4, 2, -1, 1),
    Sketcher.Constraint("PointOnObject", 0, 3, -2),
    Sketcher.Constraint("Equal", 5, 2),
    Sketcher.Constraint("Diameter", 0, Q("3.3 mm")),
    Sketcher.Constraint("DistanceX", 3, 1, 3, 2, Q("20.2 mm")),
    Sketcher.Constraint("DistanceY", 1, 3, 2, 2, Q("5 mm")),
])
sketch5.setExpression("Constraints[13]", "Params.sketch5_diameter")
sketch5.setExpression("Constraints[14]", "Params.sketch5_width")
pocket4 = body.newObject("PartDesign::Pocket", "Pocket003")
pocket4.Profile = sketch5
pocket4.Type = "ThroughAll"

doc.recompute()
